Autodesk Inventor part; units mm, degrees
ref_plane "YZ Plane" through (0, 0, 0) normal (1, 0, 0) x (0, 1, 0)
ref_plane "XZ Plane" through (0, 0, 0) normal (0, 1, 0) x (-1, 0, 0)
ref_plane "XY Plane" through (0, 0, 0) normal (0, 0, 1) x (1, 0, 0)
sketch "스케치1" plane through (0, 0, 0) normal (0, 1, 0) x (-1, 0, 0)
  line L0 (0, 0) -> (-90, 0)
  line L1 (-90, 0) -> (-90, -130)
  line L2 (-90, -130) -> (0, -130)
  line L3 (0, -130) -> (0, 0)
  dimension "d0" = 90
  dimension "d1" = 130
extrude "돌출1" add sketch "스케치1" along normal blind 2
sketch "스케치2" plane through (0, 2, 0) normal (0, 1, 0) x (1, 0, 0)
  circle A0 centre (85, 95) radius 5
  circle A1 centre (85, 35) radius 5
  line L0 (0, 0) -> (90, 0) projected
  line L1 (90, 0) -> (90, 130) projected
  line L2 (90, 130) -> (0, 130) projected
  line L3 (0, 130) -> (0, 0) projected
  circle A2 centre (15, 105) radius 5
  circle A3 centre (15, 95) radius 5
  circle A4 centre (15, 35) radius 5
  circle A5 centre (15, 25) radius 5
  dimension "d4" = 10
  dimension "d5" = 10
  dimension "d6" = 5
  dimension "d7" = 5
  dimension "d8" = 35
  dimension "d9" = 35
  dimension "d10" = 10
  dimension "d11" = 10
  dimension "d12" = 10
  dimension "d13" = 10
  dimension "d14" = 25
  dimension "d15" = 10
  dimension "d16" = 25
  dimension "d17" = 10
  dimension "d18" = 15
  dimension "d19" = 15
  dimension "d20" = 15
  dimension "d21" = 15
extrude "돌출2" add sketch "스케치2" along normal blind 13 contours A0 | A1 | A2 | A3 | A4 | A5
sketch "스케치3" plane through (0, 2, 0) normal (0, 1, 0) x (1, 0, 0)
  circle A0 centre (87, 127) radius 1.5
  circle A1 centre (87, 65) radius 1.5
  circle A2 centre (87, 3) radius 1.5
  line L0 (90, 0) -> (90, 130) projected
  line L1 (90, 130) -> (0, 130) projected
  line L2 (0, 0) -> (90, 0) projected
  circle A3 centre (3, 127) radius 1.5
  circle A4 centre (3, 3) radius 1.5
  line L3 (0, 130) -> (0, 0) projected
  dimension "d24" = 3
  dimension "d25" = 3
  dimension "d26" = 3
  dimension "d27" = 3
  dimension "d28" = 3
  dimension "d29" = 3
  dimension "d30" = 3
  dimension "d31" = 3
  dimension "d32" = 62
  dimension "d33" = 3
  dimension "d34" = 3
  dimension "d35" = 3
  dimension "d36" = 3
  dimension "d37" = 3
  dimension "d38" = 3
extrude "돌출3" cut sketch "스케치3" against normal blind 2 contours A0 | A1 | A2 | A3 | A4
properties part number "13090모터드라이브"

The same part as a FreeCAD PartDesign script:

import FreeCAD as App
import Part
import Sketcher
Q = App.Units.Quantity


def add_polygon(sketch, points):
    """Adds a closed chain of lines whose ends are joined by coincident constraints."""
    first, n = sketch.GeometryCount, len(points)
    for a, b in zip(points, points[1:] + points[:1]):
        sketch.addGeometry(Part.LineSegment(App.Vector(*a, 0), App.Vector(*b, 0)), False)
    for i in range(n):
        sketch.addConstraint(Sketcher.Constraint("Coincident", first + i, 2, first + (i + 1) % n, 1))

doc = App.newDocument("Part")
body = doc.addObject("PartDesign::Body", "Body")

# Sketch on XZ plane
sketch1 = body.newObject("Sketcher::SketchObject", "Sketch")
sketch1.AttachmentSupport = (doc.getObject("XZ_Plane"), [""])
sketch1.MapMode = "FlatFace"
add_polygon(sketch1, [(0, -130), (0, 0), (90, 0), (90, -130)])  # lines 0-3
sketch1.addConstraint([
    Sketcher.Constraint("Vertical", 0),
    Sketcher.Constraint("Horizontal", 1),
    Sketcher.Constraint("Vertical", 2),
    Sketcher.Constraint("Horizontal", 3),
    Sketcher.Constraint("Coincident", 0, 2, -1, 1),
    Sketcher.Constraint("DistanceX", 1, 1, 1, 2, Q("90 mm")),
    Sketcher.Constraint("DistanceY", 0, 1, 0, 2, Q("130 mm")),
])
pad1 = body.newObject("PartDesign::Pad", "Pad")
pad1.Profile = sketch1
pad1.Length = 2
pad1.Reversed = True

# Sketch on XZ plane
sketch2 = body.newObject("Sketcher::SketchObject", "Sketch001")
sketch2.AttachmentSupport = (doc.getObject("XZ_Plane"), [""])
sketch2.MapMode = "FlatFace"
sketch2.AttachmentOffset = App.Placement(App.Vector(0, 0, -2), App.Rotation())
sketch2.addGeometry([
    Part.Circle(App.Vector(85, -95, 0), App.Vector(0, 0, 1), 5),  # 0
    Part.Circle(App.Vector(85, -35, 0), App.Vector(0, 0, 1), 5),  # 1
    Part.Circle(App.Vector(15, -105, 0), App.Vector(0, 0, 1), 5),  # 2
    Part.Circle(App.Vector(15, -95, 0), App.Vector(0, 0, 1), 5),  # 3
    Part.Circle(App.Vector(15, -35, 0), App.Vector(0, 0, 1), 5),  # 4
    Part.Circle(App.Vector(15, -25, 0), App.Vector(0, 0, 1), 5),  # 5
], False)
sketch2.addConstraint([
    Sketcher.Constraint("Equal", 0, 1),
    Sketcher.Constraint("Equal", 1, 2),
    Sketcher.Constraint("Equal", 2, 3),
    Sketcher.Constraint("Equal", 3, 4),
    Sketcher.Constraint("Equal", 4, 5),
    Sketcher.Constraint("Horizontal", 0, 3, 3, 3),
    Sketcher.Constraint("Horizontal", 1, 3, 4, 3),
    Sketcher.Constraint("Vertical", 0, 3, 1, 3),
    Sketcher.Constraint("Vertical", 2, 3, 3, 3),
    Sketcher.Constraint("Vertical", 3, 3, 4, 3),
    Sketcher.Constraint("Vertical", 4, 3, 5, 3),
    Sketcher.Constraint("Diameter", 0, Q("10 mm")),
    Sketcher.Constraint("DistanceY", 1, 3, -1, 1, Q("35 mm")),
    Sketcher.Constraint("DistanceX", -1, 1, 2, 3, Q("15 mm")),
    Sketcher.Constraint("DistanceY", 5, 3, -1, 1, Q("25 mm")),
    Sketcher.Constraint("DistanceY", 2, 3, 0, 3, Q("10 mm")),
    Sketcher.Constraint("DistanceX", -1, 1, 0, 3, Q("85 mm")),
    Sketcher.Constraint("DistanceY", 0, 3, -1, 1, Q("95 mm")),
])
pad2 = body.newObject("PartDesign::Pad", "Pad001")
pad2.Profile = sketch2
pad2.Length = 13
pad2.Reversed = True

# Sketch on XZ plane
sketch3 = body.newObject("Sketcher::SketchObject", "Sketch002")
sketch3.AttachmentSupport = (doc.getObject("XZ_Plane"), [""])
sketch3.MapMode = "FlatFace"
sketch3.AttachmentOffset = App.Placement(App.Vector(0, 0, -2), App.Rotation())
sketch3.addGeometry([
    Part.Circle(App.Vector(87, -127, 0), App.Vector(0, 0, 1), 1.5),  # 0
    Part.Circle(App.Vector(87, -65, 0), App.Vector(0, 0, 1), 1.5),  # 1
    Part.Circle(App.Vector(87, -3, 0), App.Vector(0, 0, 1), 1.5),  # 2
    Part.Circle(App.Vector(3, -127, 0), App.Vector(0, 0, 1), 1.5),  # 3
    Part.Circle(App.Vector(3, -3, 0), App.Vector(0, 0, 1), 1.5),  # 4
], False)
sketch3.addConstraint([
    Sketcher.Constraint("Equal", 0, 1),
    Sketcher.Constraint("Equal", 1, 2),
    Sketcher.Constraint("Equal", 2, 3),
    Sketcher.Constraint("Equal", 3, 4),
    Sketcher.Constraint("Horizontal", 0, 3, 3, 3),
    Sketcher.Constraint("Horizontal", 2, 3, 4, 3),
    Sketcher.Constraint("Vertical", 0, 3, 1, 3),
    Sketcher.Constraint("Vertical", 1, 3, 2, 3),
    Sketcher.Constraint("Vertical", 3, 3, 4, 3),
    Sketcher.Constraint("Diameter", 0, Q("3 mm")),
    Sketcher.Constraint("DistanceY", 2, 3, -1, 1, Q("3 mm")),
    Sketcher.Constraint("DistanceX", -1, 1, 3, 3, Q("3 mm")),
    Sketcher.Constraint("DistanceY", 0, 3, 1, 3, Q("62 mm")),
    Sketcher.Constraint("DistanceY", 1, 3, 2, 3, Q("62 mm")),
    Sketcher.Constraint("DistanceX", -1, 1, 0, 3, Q("87 mm")),
])
pocket1 = body.newObject("PartDesign::Pocket", "Pocket")
pocket1.Profile = sketch3
pocket1.Length = 2
pocket1.Reversed = True

doc.recompute()
